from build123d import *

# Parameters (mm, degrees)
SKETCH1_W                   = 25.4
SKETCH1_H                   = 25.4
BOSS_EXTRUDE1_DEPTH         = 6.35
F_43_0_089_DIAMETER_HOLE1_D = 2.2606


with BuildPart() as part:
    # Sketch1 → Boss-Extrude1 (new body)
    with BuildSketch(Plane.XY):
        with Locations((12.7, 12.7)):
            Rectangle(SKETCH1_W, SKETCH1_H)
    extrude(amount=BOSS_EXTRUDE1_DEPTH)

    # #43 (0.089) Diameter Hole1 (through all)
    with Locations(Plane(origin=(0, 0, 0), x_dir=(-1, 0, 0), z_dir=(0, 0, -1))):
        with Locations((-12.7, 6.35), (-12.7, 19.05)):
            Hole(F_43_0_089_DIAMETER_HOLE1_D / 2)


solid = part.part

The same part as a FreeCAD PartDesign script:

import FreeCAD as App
import Part
import Sketcher

V = App.Vector
Q = App.Units.Quantity


def add_polygon(sketch, points):
    """Adds a closed chain of lines whose ends are joined by coincident constraints."""
    first, n = sketch.GeometryCount, len(points)
    for a, b in zip(points, points[1:] + points[:1]):
        sketch.addGeometry(Part.LineSegment(App.Vector(*a, 0), App.Vector(*b, 0)), False)
    for i in range(n):
        sketch.addConstraint(Sketcher.Constraint("Coincident", first + i, 2, first + (i + 1) % n, 1))

doc = App.newDocument("Part")
body = doc.addObject("PartDesign::Body", "Body")

# Sketch on XY plane
sketch1 = body.newObject("Sketcher::SketchObject", "Sketch")
sketch1.AttachmentSupport = (doc.getObject("XY_Plane"), [""])
sketch1.MapMode = "FlatFace"
add_polygon(sketch1, [(0, 25), (0, 0), (25, 0), (25, 25)])  # lines 0-3
sketch1.addConstraint(Sketcher.Constraint("Vertical", 0))
sketch1.addConstraint(Sketcher.Constraint("Horizontal", 1))
sketch1.addConstraint(Sketcher.Constraint("Vertical", 2))
sketch1.addConstraint(Sketcher.Constraint("Horizontal", 3))
sketch1.addConstraint(Sketcher.Constraint("Coincident", 0, 2, -1, 1))
sketch1.addConstraint(Sketcher.Constraint("Equal", 3, 0))
sketch1.addConstraint(Sketcher.Constraint("DistanceX", 1, 1, 1, 2, Q("1 in")))
pad1 = body.newObject("PartDesign::Pad", "Pad")
pad1.Profile = sketch1
pad1.Length = Q("0.25 in")

# Sketch on XY plane
sketch2 = body.newObject("Sketcher::SketchObject", "Sketch001")
sketch2.AttachmentSupport = (doc.getObject("XY_Plane"), [""])
sketch2.MapMode = "FlatFace"
sketch2.addGeometry(Part.Circle(V(12.7, 6.3, 0), V(0, 0, 1), 1.1), False)
sketch2.addGeometry(Part.Circle(V(12.7, 19.1, 0), V(0, 0, 1), 1.1), False)
sketch2.addConstraint(Sketcher.Constraint("Equal", 0, 1))
sketch2.addConstraint(Sketcher.Constraint("Vertical", 0, 3, 1, 3))
sketch2.addConstraint(Sketcher.Constraint("Diameter", 0, Q("0.089 in")))
sketch2.addConstraint(Sketcher.Constraint("DistanceX", -1, 1, 0, 3, Q("0.5 in")))
sketch2.addConstraint(Sketcher.Constraint("DistanceY", 0, 3, 1, 3, Q("0.5 in")))
sketch2.addConstraint(Sketcher.Constraint("DistanceY", -1, 1, 0, 3, Q("0.25 in")))
doc.recompute()
hole = body.newObject("PartDesign::Hole", "Hole")
hole.Profile = sketch2
hole.ThreadType = "None"
hole.Diameter = Q("0.089 in")
hole.DepthType = "ThroughAll"
hole.Reversed = True

doc.recompute()
